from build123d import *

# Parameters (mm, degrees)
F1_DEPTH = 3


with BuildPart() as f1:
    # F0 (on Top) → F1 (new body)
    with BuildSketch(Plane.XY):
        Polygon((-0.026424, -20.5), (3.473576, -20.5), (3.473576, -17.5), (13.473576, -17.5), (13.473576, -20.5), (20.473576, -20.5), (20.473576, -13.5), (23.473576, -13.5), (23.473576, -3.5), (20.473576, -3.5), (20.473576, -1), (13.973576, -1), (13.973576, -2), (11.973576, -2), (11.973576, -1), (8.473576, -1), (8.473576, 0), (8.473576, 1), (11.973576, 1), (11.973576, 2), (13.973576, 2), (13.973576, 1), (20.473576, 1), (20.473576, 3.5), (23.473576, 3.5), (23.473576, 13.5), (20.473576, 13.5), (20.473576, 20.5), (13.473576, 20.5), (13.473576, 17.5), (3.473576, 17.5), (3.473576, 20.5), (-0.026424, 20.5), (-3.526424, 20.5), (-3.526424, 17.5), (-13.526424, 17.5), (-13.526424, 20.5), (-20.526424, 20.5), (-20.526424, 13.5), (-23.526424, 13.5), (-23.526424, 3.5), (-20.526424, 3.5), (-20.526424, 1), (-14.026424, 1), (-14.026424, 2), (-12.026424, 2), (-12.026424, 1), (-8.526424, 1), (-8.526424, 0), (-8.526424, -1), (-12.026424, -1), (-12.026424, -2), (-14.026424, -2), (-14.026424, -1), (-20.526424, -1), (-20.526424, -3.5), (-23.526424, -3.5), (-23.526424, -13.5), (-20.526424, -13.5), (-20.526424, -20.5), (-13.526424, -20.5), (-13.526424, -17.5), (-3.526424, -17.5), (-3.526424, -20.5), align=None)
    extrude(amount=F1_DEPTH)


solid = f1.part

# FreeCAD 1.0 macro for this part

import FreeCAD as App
import Part
import Sketcher

V = App.Vector

doc = App.newDocument("Part")
body = doc.addObject("PartDesign::Body", "Body")

sketch1 = doc.addObject("Sketcher::SketchObject", "Sketch")
body.addObject(sketch1)
sketch1.AttachmentSupport = (doc.XY_Plane, [""])
sketch1.MapMode = "FlatFace"
sketch1.addGeometry([
    Part.LineSegment(V(3.5, -20.5, 0), V(3.5, -17.5, 0)),
    Part.LineSegment(V(3.5, -17.5, 0), V(13.5, -17.5, 0)),
    Part.LineSegment(V(13.5, -17.5, 0), V(13.5, -20.5, 0)),
    Part.LineSegment(V(13.5, -20.5, 0), V(20.5, -20.5, 0)),
    Part.LineSegment(V(20.5, -20.5, 0), V(20.5, -13.5, 0)),
    Part.LineSegment(V(20.5, -13.5, 0), V(23.5, -13.5, 0)),
    Part.LineSegment(V(23.5, -13.5, 0), V(23.5, -3.5, 0)),
    Part.LineSegment(V(23.5, -3.5, 0), V(20.5, -3.5, 0)),
    Part.LineSegment(V(20.5, -3.5, 0), V(20.5, -1, 0)),
    Part.LineSegment(V(20.5, -1, 0), V(14, -1, 0)),
    Part.LineSegment(V(14, -1, 0), V(14, -2, 0)),
    Part.LineSegment(V(14, -2, 0), V(12, -2, 0)),
    Part.LineSegment(V(12, -2, 0), V(12, -1, 0)),
    Part.LineSegment(V(12, -1, 0), V(8.5, -1, 0)),
    Part.LineSegment(V(8.5, -1, 0), V(8.5, 1, 0)),
    Part.LineSegment(V(8.5, 1, 0), V(12, 1, 0)),
    Part.LineSegment(V(12, 1, 0), V(12, 2, 0)),
    Part.LineSegment(V(12, 2, 0), V(14, 2, 0)),
    Part.LineSegment(V(14, 2, 0), V(14, 1, 0)),
    Part.LineSegment(V(14, 1, 0), V(20.5, 1, 0)),
    Part.LineSegment(V(20.5, 1, 0), V(20.5, 3.5, 0)),
    Part.LineSegment(V(20.5, 3.5, 0), V(23.5, 3.5, 0)),
    Part.LineSegment(V(23.5, 3.5, 0), V(23.5, 13.5, 0)),
    Part.LineSegment(V(23.5, 13.5, 0), V(20.5, 13.5, 0)),
    Part.LineSegment(V(20.5, 13.5, 0), V(20.5, 20.5, 0)),
    Part.LineSegment(V(20.5, 20.5, 0), V(13.5, 20.5, 0)),
    Part.LineSegment(V(13.5, 20.5, 0), V(13.5, 17.5, 0)),
    Part.LineSegment(V(13.5, 17.5, 0), V(3.5, 17.5, 0)),
    Part.LineSegment(V(3.5, 17.5, 0), V(3.5, 20.5, 0)),
    Part.LineSegment(V(3.5, 20.5, 0), V(-3.5, 20.5, 0)),
    Part.LineSegment(V(-3.5, 20.5, 0), V(-3.5, 17.5, 0)),
    Part.LineSegment(V(-3.5, 17.5, 0), V(-13.5, 17.5, 0)),
    Part.LineSegment(V(-13.5, 17.5, 0), V(-13.5, 20.5, 0)),
    Part.LineSegment(V(-13.5, 20.5, 0), V(-20.5, 20.5, 0)),
    Part.LineSegment(V(-20.5, 20.5, 0), V(-20.5, 13.5, 0)),
    Part.LineSegment(V(-20.5, 13.5, 0), V(-23.5, 13.5, 0)),
    Part.LineSegment(V(-23.5, 13.5, 0), V(-23.5, 3.5, 0)),
    Part.LineSegment(V(-23.5, 3.5, 0), V(-20.5, 3.5, 0)),
    Part.LineSegment(V(-20.5, 3.5, 0), V(-20.5, 1, 0)),
    Part.LineSegment(V(-20.5, 1, 0), V(-14, 1, 0)),
    Part.LineSegment(V(-14, 1, 0), V(-14, 2, 0)),
    Part.LineSegment(V(-14, 2, 0), V(-12, 2, 0)),
    Part.LineSegment(V(-12, 2, 0), V(-12, 1, 0)),
    Part.LineSegment(V(-12, 1, 0), V(-8.5, 1, 0)),
    Part.LineSegment(V(-8.5, 1, 0), V(-8.5, -1, 0)),
    Part.LineSegment(V(-8.5, -1, 0), V(-12, -1, 0)),
    Part.LineSegment(V(-12, -1, 0), V(-12, -2, 0)),
    Part.LineSegment(V(-12, -2, 0), V(-14, -2, 0)),
    Part.LineSegment(V(-14, -2, 0), V(-14, -1, 0)),
    Part.LineSegment(V(-14, -1, 0), V(-20.5, -1, 0)),
    Part.LineSegment(V(-20.5, -1, 0), V(-20.5, -3.5, 0)),
    Part.LineSegment(V(-20.5, -3.5, 0), V(-23.5, -3.5, 0)),
    Part.LineSegment(V(-23.5, -3.5, 0), V(-23.5, -13.5, 0)),
    Part.LineSegment(V(-23.5, -13.5, 0), V(-20.5, -13.5, 0)),
    Part.LineSegment(V(-20.5, -13.5, 0), V(-20.5, -20.5, 0)),
    Part.LineSegment(V(-20.5, -20.5, 0), V(-13.5, -20.5, 0)),
    Part.LineSegment(V(-13.5, -20.5, 0), V(-13.5, -17.5, 0)),
    Part.LineSegment(V(-13.5, -17.5, 0), V(-3.5, -17.5, 0)),
    Part.LineSegment(V(-3.5, -17.5, 0), V(-3.5, -20.5, 0)),
    Part.LineSegment(V(-3.5, -20.5, 0), V(3.5, -20.5, 0)),
], False)
sketch1.addConstraint([
    Sketcher.Constraint("Coincident", 0, 2, 1, 1),
    Sketcher.Constraint("Coincident", 1, 2, 2, 1),
    Sketcher.Constraint("Coincident", 2, 2, 3, 1),
    Sketcher.Constraint("Coincident", 3, 2, 4, 1),
    Sketcher.Constraint("Coincident", 4, 2, 5, 1),
    Sketcher.Constraint("Coincident", 5, 2, 6, 1),
    Sketcher.Constraint("Coincident", 6, 2, 7, 1),
    Sketcher.Constraint("Coincident", 7, 2, 8, 1),
    Sketcher.Constraint("Coincident", 8, 2, 9, 1),
    Sketcher.Constraint("Coincident", 9, 2, 10, 1),
    Sketcher.Constraint("Coincident", 10, 2, 11, 1),
    Sketcher.Constraint("Coincident", 11, 2, 12, 1),
    Sketcher.Constraint("Coincident", 12, 2, 13, 1),
    Sketcher.Constraint("Coincident", 13, 2, 14, 1),
    Sketcher.Constraint("Coincident", 14, 2, 15, 1),
    Sketcher.Constraint("Coincident", 15, 2, 16, 1),
    Sketcher.Constraint("Coincident", 16, 2, 17, 1),
    Sketcher.Constraint("Coincident", 17, 2, 18, 1),
    Sketcher.Constraint("Coincident", 18, 2, 19, 1),
    Sketcher.Constraint("Coincident", 19, 2, 20, 1),
    Sketcher.Constraint("Coincident", 20, 2, 21, 1),
    Sketcher.Constraint("Coincident", 21, 2, 22, 1),
    Sketcher.Constraint("Coincident", 22, 2, 23, 1),
    Sketcher.Constraint("Coincident", 23, 2, 24, 1),
    Sketcher.Constraint("Coincident", 24, 2, 25, 1),
    Sketcher.Constraint("Coincident", 25, 2, 26, 1),
    Sketcher.Constraint("Coincident", 26, 2, 27, 1),
    Sketcher.Constraint("Coincident", 27, 2, 28, 1),
    Sketcher.Constraint("Coincident", 28, 2, 29, 1),
    Sketcher.Constraint("Coincident", 29, 2, 30, 1),
    Sketcher.Constraint("Coincident", 30, 2, 31, 1),
    Sketcher.Constraint("Coincident", 31, 2, 32, 1),
    Sketcher.Constraint("Coincident", 32, 2, 33, 1),
    Sketcher.Constraint("Coincident", 33, 2, 34, 1),
    Sketcher.Constraint("Coincident", 34, 2, 35, 1),
    Sketcher.Constraint("Coincident", 35, 2, 36, 1),
    Sketcher.Constraint("Coincident", 36, 2, 37, 1),
    Sketcher.Constraint("Coincident", 37, 2, 38, 1),
    Sketcher.Constraint("Coincident", 38, 2, 39, 1),
    Sketcher.Constraint("Coincident", 39, 2, 40, 1),
    Sketcher.Constraint("Coincident", 40, 2, 41, 1),
    Sketcher.Constraint("Coincident", 41, 2, 42, 1),
    Sketcher.Constraint("Coincident", 42, 2, 43, 1),
    Sketcher.Constraint("Coincident", 43, 2, 44, 1),
    Sketcher.Constraint("Coincident", 44, 2, 45, 1),
    Sketcher.Constraint("Coincident", 45, 2, 46, 1),
    Sketcher.Constraint("Coincident", 46, 2, 47, 1),
    Sketcher.Constraint("Coincident", 47, 2, 48, 1),
    Sketcher.Constraint("Coincident", 48, 2, 49, 1),
    Sketcher.Constraint("Coincident", 49, 2, 50, 1),
    Sketcher.Constraint("Coincident", 50, 2, 51, 1),
    Sketcher.Constraint("Coincident", 51, 2, 52, 1),
    Sketcher.Constraint("Coincident", 52, 2, 53, 1),
    Sketcher.Constraint("Coincident", 53, 2, 54, 1),
    Sketcher.Constraint("Coincident", 54, 2, 55, 1),
    Sketcher.Constraint("Coincident", 55, 2, 56, 1),
    Sketcher.Constraint("Coincident", 56, 2, 57, 1),
    Sketcher.Constraint("Coincident", 57, 2, 58, 1),
    Sketcher.Constraint("Coincident", 58, 2, 59, 1),
    Sketcher.Constraint("Coincident", 59, 2, 0, 1),
    Sketcher.Constraint("Vertical", 0),
    Sketcher.Constraint("Horizontal", 1),
    Sketcher.Constraint("Vertical", 2),
    Sketcher.Constraint("Horizontal", 3),
    Sketcher.Constraint("Vertical", 4),
    Sketcher.Constraint("Horizontal", 5),
    Sketcher.Constraint("Vertical", 6),
    Sketcher.Constraint("Horizontal", 7),
    Sketcher.Constraint("Vertical", 8),
    Sketcher.Constraint("Horizontal", 9),
    Sketcher.Constraint("Vertical", 10),
    Sketcher.Constraint("Horizontal", 11),
    Sketcher.Constraint("Vertical", 12),
    Sketcher.Constraint("Horizontal", 13),
    Sketcher.Constraint("Vertical", 14),
    Sketcher.Constraint("Horizontal", 15),
    Sketcher.Constraint("Vertical", 16),
    Sketcher.Constraint("Horizontal", 17),
    Sketcher.Constraint("Vertical", 18),
    Sketcher.Constraint("Horizontal", 19),
    Sketcher.Constraint("Vertical", 20),
    Sketcher.Constraint("Horizontal", 21),
    Sketcher.Constraint("Vertical", 22),
    Sketcher.Constraint("Horizontal", 23),
    Sketcher.Constraint("Vertical", 24),
    Sketcher.Constraint("Horizontal", 25),
    Sketcher.Constraint("Vertical", 26),
    Sketcher.Constraint("Horizontal", 27),
    Sketcher.Constraint("Vertical", 28),
    Sketcher.Constraint("Horizontal", 29),
    Sketcher.Constraint("Vertical", 30),
    Sketcher.Constraint("Horizontal", 31),
    Sketcher.Constraint("Vertical", 32),
    Sketcher.Constraint("Horizontal", 33),
    Sketcher.Constraint("Vertical", 34),
    Sketcher.Constraint("Horizontal", 35),
    Sketcher.Constraint("Vertical", 36),
    Sketcher.Constraint("Horizontal", 37),
    Sketcher.Constraint("Vertical", 38),
    Sketcher.Constraint("Horizontal", 39),
    Sketcher.Constraint("Vertical", 40),
    Sketcher.Constraint("Horizontal", 41),
    Sketcher.Constraint("Vertical", 42),
    Sketcher.Constraint("Horizontal", 43),
    Sketcher.Constraint("Vertical", 44),
    Sketcher.Constraint("Horizontal", 45),
    Sketcher.Constraint("Vertical", 46),
    Sketcher.Constraint("Horizontal", 47),
    Sketcher.Constraint("Vertical", 48),
    Sketcher.Constraint("Horizontal", 49),
    Sketcher.Constraint("Vertical", 50),
    Sketcher.Constraint("Horizontal", 51),
    Sketcher.Constraint("Vertical", 52),
    Sketcher.Constraint("Horizontal", 53),
    Sketcher.Constraint("Vertical", 54),
    Sketcher.Constraint("Horizontal", 55),
    Sketcher.Constraint("Vertical", 56),
    Sketcher.Constraint("Horizontal", 57),
    Sketcher.Constraint("Vertical", 58),
    Sketcher.Constraint("Horizontal", 59),
    Sketcher.Constraint("Symmetric", 12, 2, 15, 2, -1),
    Sketcher.Constraint("Symmetric", 10, 2, 17, 2, -1),
    Sketcher.Constraint("Symmetric", 8, 2, 19, 2, -1),
    Sketcher.Constraint("Symmetric", 6, 2, 21, 2, -1),
    Sketcher.Constraint("Symmetric", 4, 2, 23, 2, -1),
    Sketcher.Constraint("Symmetric", 2, 2, 25, 2, -1),
    Sketcher.Constraint("Symmetric", 0, 2, 27, 2, -1),
    Sketcher.Constraint("Symmetric", 42, 2, 45, 2, -1),
    Sketcher.Constraint("Symmetric", 40, 2, 47, 2, -1),
    Sketcher.Constraint("Symmetric", 38, 2, 49, 2, -1),
    Sketcher.Constraint("Symmetric", 36, 2, 51, 2, -1),
    Sketcher.Constraint("Symmetric", 34, 2, 53, 2, -1),
    Sketcher.Constraint("Symmetric", 32, 2, 55, 2, -1),
    Sketcher.Constraint("Symmetric", 30, 2, 57, 2, -1),
    Sketcher.Constraint("Horizontal", 9, 2, 12, 2),
    Sketcher.Constraint("Horizontal", 25, 2, 28, 2),
    Sketcher.Constraint("Horizontal", 27, 2, 30, 2),
    Sketcher.Constraint("Horizontal", 29, 2, 32, 2),
    Sketcher.Constraint("Horizontal", 23, 2, 34, 2),
    Sketcher.Constraint("Horizontal", 21, 2, 36, 2),
    Sketcher.Constraint("Horizontal", 19, 2, 38, 2),
    Sketcher.Constraint("Horizontal", 17, 2, 40, 2),
    Sketcher.Constraint("Horizontal", 39, 2, 42, 2),
    Sketcher.Constraint("Horizontal", 55, 2, 58, 2),
    Sketcher.Constraint("Vertical", 4, 2, 7, 2),
    Sketcher.Constraint("Vertical", 34, 2, 37, 2),
    Sketcher.Constraint("Equal", 25, 29),
    Sketcher.Constraint("Equal", 27, 31),
    Sketcher.Constraint("Equal", 29, 33),
    Sketcher.Constraint("Equal", 23, 35),
    Sketcher.Constraint("Equal", 19, 39),
    Sketcher.Constraint("Equal", 17, 41),
    Sketcher.Constraint("Equal", 15, 43),
    Sketcher.Constraint("Equal", 53, 0),
    Sketcher.Constraint("Equal", 59, 4),
    Sketcher.Constraint("Equal", 57, 6),
    Sketcher.Constraint("Equal", 47, 14),
    Sketcher.Constraint("DistanceX", 1, 1, 1, 2, 10.0),
    Sketcher.Constraint("DistanceX", 3, 1, 3, 2, 7.0),
    Sketcher.Constraint("DistanceX", 5, 1, 5, 2, 3.0),
    Sketcher.Constraint("DistanceX", 11, 2, 11, 1, 2.0),
    Sketcher.Constraint("DistanceY", 10, 2, 10, 1, 1.0),
    Sketcher.Constraint("DistanceX", 9, 2, 9, 1, 6.5),
    Sketcher.Constraint("DistanceX", 13, 2, 13, 1, 3.5),
    Sketcher.Constraint("DistanceY", 8, 1, 8, 2, 2.5),
    Sketcher.Constraint("DistanceX", -1, 1, 0, 2, 3.473576),
])
pad1 = doc.addObject("PartDesign::Pad", "Pad")
body.addObject(pad1)
pad1.Profile = sketch1
pad1.Length = 3

doc.recompute()
